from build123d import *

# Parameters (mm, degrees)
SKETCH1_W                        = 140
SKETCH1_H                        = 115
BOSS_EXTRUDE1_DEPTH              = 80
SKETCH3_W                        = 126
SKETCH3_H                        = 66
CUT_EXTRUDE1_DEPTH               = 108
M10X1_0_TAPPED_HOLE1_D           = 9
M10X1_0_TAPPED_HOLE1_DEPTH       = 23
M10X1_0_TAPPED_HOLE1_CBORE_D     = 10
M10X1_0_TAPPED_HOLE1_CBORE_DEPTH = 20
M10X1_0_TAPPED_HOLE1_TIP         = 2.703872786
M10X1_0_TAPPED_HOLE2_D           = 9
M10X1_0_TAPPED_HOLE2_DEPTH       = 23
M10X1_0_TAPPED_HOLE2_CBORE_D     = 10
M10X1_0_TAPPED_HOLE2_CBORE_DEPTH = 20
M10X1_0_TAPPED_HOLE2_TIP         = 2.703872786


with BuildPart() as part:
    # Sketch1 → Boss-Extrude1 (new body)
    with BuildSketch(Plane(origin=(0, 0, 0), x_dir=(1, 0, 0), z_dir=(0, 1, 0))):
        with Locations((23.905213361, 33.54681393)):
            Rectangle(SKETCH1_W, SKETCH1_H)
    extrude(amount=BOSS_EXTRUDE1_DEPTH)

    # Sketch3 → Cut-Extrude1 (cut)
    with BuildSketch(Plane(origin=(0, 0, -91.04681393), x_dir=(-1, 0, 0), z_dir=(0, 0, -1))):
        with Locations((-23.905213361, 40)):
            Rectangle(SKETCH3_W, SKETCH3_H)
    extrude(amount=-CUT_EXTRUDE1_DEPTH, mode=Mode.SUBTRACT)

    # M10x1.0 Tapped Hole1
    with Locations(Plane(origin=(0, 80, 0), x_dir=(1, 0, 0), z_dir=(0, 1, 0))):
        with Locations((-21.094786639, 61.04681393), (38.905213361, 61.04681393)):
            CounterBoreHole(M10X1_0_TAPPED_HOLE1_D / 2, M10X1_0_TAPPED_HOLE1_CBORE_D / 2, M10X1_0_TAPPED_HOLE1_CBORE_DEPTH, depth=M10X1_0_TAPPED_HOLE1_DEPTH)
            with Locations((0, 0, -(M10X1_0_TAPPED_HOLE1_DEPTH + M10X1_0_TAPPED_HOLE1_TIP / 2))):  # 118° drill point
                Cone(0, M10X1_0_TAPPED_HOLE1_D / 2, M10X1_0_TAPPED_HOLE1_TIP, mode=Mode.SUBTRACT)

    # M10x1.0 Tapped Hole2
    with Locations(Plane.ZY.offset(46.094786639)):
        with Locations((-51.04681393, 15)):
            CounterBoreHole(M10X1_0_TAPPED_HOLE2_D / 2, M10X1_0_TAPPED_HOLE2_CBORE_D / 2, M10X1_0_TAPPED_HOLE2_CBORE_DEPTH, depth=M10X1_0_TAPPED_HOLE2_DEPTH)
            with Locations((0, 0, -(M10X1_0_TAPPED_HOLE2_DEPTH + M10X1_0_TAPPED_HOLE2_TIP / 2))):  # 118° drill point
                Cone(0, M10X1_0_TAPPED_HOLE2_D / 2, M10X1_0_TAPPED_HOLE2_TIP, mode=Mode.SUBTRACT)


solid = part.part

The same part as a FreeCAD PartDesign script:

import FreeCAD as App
import Part
import Sketcher


def add_polygon(sketch, points):
    """Adds a closed chain of lines whose ends are joined by coincident constraints."""
    first, n = sketch.GeometryCount, len(points)
    for a, b in zip(points, points[1:] + points[:1]):
        sketch.addGeometry(Part.LineSegment(App.Vector(*a, 0), App.Vector(*b, 0)), False)
    for i in range(n):
        sketch.addConstraint(Sketcher.Constraint("Coincident", first + i, 2, first + (i + 1) % n, 1))

doc = App.newDocument("Part")
params = doc.addObject("Spreadsheet::Sheet", "Params")
for row, (alias, value) in enumerate([
    ("sketch1_width", "140 mm"),
    ("sketch1_height", "115 mm"),
    ("pad1_length", "80 mm"),
    ("sketch2_width", "126 mm"),
    ("sketch2_height", "66 mm"),
    ("pocket1_length", "108 mm"),
    ("sketch3_diameter", "9 mm"),
    ("hole_diameter", "9 mm"),
    ("hole_depth", "23 mm"),
    ("hole_cbore_diameter", "10 mm"),
    ("hole_cbore_depth", "20 mm"),
    ("sketch4_diameter", "9 mm"),
    ("hole2_diameter", "9 mm"),
    ("hole2_depth", "23 mm"),
    ("hole2_cbore_diameter", "10 mm"),
    ("hole2_cbore_depth", "20 mm"),
], start=1):
    params.set(f"A{row}", alias)
    params.set(f"B{row}", "=" + value)
    params.setAlias(f"B{row}", alias)

body = doc.addObject("PartDesign::Body", "Body")

sketch1 = body.newObject("Sketcher::SketchObject", "Sketch")
sketch1.AttachmentSupport = (doc.getObject("XZ_Plane"), [""])
sketch1.MapMode = "FlatFace"
add_polygon(sketch1, [(-46.094787, -91.046814), (-46.094787, 23.953186), (93.905213, 23.953186), (93.905213, -91.046814)])
sketch1.addConstraint([
    Sketcher.Constraint("Vertical", 0),
    Sketcher.Constraint("Horizontal", 1),
    Sketcher.Constraint("Vertical", 2),
    Sketcher.Constraint("Horizontal", 3),
    Sketcher.Constraint("DistanceX", 1, 1, 1, 2, 140.0),
    Sketcher.Constraint("DistanceY", 0, 1, 0, 2, 115.0),
    Sketcher.Constraint("DistanceX", 0, 2, -1, 1, 46.094787),
    Sketcher.Constraint("DistanceY", -1, 1, 0, 2, 23.953186),
])
sketch1.setExpression("Constraints[8]", "Params.sketch1_width")
sketch1.setExpression("Constraints[9]", "Params.sketch1_height")
pad1 = body.newObject("PartDesign::Pad", "Pad")
pad1.Profile = sketch1
pad1.setExpression("Length", "Params.pad1_length")
pad1.Reversed = True

sketch2 = body.newObject("Sketcher::SketchObject", "Sketch001")
sketch2.AttachmentSupport = (doc.getObject("XY_Plane"), [""])
sketch2.MapMode = "FlatFace"
sketch2.AttachmentOffset = App.Placement(App.Vector(0, 0, -91.046814), App.Rotation())
add_polygon(sketch2, [(86.905213, 73), (86.905213, 7), (-39.094787, 7), (-39.094787, 73)])
sketch2.addConstraint([
    Sketcher.Constraint("Vertical", 0),
    Sketcher.Constraint("Horizontal", 1),
    Sketcher.Constraint("Vertical", 2),
    Sketcher.Constraint("Horizontal", 3),
    Sketcher.Constraint("DistanceX", 1, 2, 1, 1, 126.0),
    Sketcher.Constraint("DistanceY", 0, 2, 0, 1, 66.0),
    Sketcher.Constraint("DistanceY", -1, 1, 0, 2, 7.0),
    Sketcher.Constraint("DistanceX", -1, 1, 0, 2, 86.905213),
])
sketch2.setExpression("Constraints[8]", "Params.sketch2_width")
sketch2.setExpression("Constraints[9]", "Params.sketch2_height")
pocket1 = body.newObject("PartDesign::Pocket", "Pocket")
pocket1.Profile = sketch2
pocket1.setExpression("Length", "Params.pocket1_length")
pocket1.Reversed = True

sketch3 = body.newObject("Sketcher::SketchObject", "Sketch002")
sketch3.AttachmentSupport = (doc.getObject("XZ_Plane"), [""])
sketch3.MapMode = "FlatFace"
sketch3.AttachmentOffset = App.Placement(App.Vector(0, 0, -80), App.Rotation())
sketch3.addGeometry([
    Part.Circle(App.Vector(-21.094787, -61.046814, 0), App.Vector(0, 0, 1), 4.5),
    Part.Circle(App.Vector(38.905213, -61.046814, 0), App.Vector(0, 0, 1), 4.5),
], False)
sketch3.addConstraint([
    Sketcher.Constraint("Equal", 0, 1),
    Sketcher.Constraint("Horizontal", 0, 3, 1, 3),
    Sketcher.Constraint("Diameter", 0, 9.0),
    Sketcher.Constraint("DistanceX", 0, 3, 1, 3, 60.0),
    Sketcher.Constraint("DistanceX", 0, 3, -1, 1, 21.094787),
    Sketcher.Constraint("DistanceY", 0, 3, -1, 1, 61.046814),
])
sketch3.setExpression("Constraints[2]", "Params.sketch3_diameter")
doc.recompute()
hole = body.newObject("PartDesign::Hole", "Hole")
hole.Profile = sketch3
hole.ThreadType = "None"
hole.setExpression("Diameter", "Params.hole_diameter")
hole.DepthType = "Dimension"
hole.setExpression("Depth", "Params.hole_depth")
hole.DrillPoint = "Angled"
hole.DrillPointAngle = 118
hole.HoleCutType = "Counterbore"
hole.setExpression("HoleCutDiameter", "Params.hole_cbore_diameter")
hole.setExpression("HoleCutDepth", "Params.hole_cbore_depth")
hole.Reversed = True

sketch4 = body.newObject("Sketcher::SketchObject", "Sketch003")
sketch4.AttachmentSupport = (doc.getObject("YZ_Plane"), [""])
sketch4.MapMode = "FlatFace"
sketch4.AttachmentOffset = App.Placement(App.Vector(0, 0, -46.094787), App.Rotation())
sketch4.addGeometry(Part.Circle(App.Vector(15, -51.046814, 0), App.Vector(0, 0, 1), 4.5), False)
sketch4.addConstraint([
    Sketcher.Constraint("Diameter", 0, 9.0),
    Sketcher.Constraint("DistanceX", -1, 1, 0, 3, 15.0),
    Sketcher.Constraint("DistanceY", 0, 3, -1, 1, 51.046814),
])
sketch4.setExpression("Constraints[0]", "Params.sketch4_diameter")
doc.recompute()
hole2 = body.newObject("PartDesign::Hole", "Hole001")
hole2.Profile = sketch4
hole2.ThreadType = "None"
hole2.setExpression("Diameter", "Params.hole2_diameter")
hole2.DepthType = "Dimension"
hole2.setExpression("Depth", "Params.hole2_depth")
hole2.DrillPoint = "Angled"
hole2.DrillPointAngle = 118
hole2.HoleCutType = "Counterbore"
hole2.setExpression("HoleCutDiameter", "Params.hole2_cbore_diameter")
hole2.setExpression("HoleCutDepth", "Params.hole2_cbore_depth")
hole2.Reversed = True

doc.recompute()
